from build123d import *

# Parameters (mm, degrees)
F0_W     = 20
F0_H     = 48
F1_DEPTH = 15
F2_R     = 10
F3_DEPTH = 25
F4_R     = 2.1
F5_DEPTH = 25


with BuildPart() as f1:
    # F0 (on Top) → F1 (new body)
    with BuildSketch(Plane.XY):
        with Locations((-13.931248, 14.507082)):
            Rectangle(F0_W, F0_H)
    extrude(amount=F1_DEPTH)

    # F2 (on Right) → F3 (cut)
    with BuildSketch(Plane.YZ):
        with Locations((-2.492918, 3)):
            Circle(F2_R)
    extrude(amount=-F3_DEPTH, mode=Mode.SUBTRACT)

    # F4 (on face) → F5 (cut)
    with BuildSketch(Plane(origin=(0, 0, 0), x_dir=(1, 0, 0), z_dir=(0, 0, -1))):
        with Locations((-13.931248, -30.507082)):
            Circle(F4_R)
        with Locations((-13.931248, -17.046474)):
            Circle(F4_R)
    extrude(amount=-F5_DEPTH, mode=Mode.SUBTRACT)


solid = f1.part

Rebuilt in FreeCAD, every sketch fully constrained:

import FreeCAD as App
import Part
import Sketcher

V = App.Vector


def add_polygon(sketch, points):
    """Adds a closed chain of lines whose ends are joined by coincident constraints."""
    first, n = sketch.GeometryCount, len(points)
    for a, b in zip(points, points[1:] + points[:1]):
        sketch.addGeometry(Part.LineSegment(App.Vector(*a, 0), App.Vector(*b, 0)), False)
    for i in range(n):
        sketch.addConstraint(Sketcher.Constraint("Coincident", first + i, 2, first + (i + 1) % n, 1))

doc = App.newDocument("Part")
body = doc.addObject("PartDesign::Body", "Body")

# Sketch on XY plane
sketch1 = doc.addObject("Sketcher::SketchObject", "Sketch")
body.addObject(sketch1)
sketch1.AttachmentSupport = (doc.XY_Plane, [""])
sketch1.MapMode = "FlatFace"
add_polygon(sketch1, [(-24, 39), (-24, -9), (-4, -9), (-4, 39)])  # lines 0-3
sketch1.addConstraint([
    Sketcher.Constraint("Vertical", 0),
    Sketcher.Constraint("Horizontal", 1),
    Sketcher.Constraint("Vertical", 2),
    Sketcher.Constraint("Horizontal", 3),
    Sketcher.Constraint("DistanceX", 1, 1, 1, 2, 20.0),
    Sketcher.Constraint("DistanceY", 0, 2, 0, 1, 48.0),
    Sketcher.Constraint("DistanceX", 0, 2, -1, 1, 23.931248),
    Sketcher.Constraint("DistanceY", -1, 1, 2, 2, 38.507082),
])
pad1 = doc.addObject("PartDesign::Pad", "Pad")
body.addObject(pad1)
pad1.Profile = sketch1
pad1.Length = 15

# Sketch on YZ plane
sketch2 = doc.addObject("Sketcher::SketchObject", "Sketch001")
body.addObject(sketch2)
sketch2.AttachmentSupport = (doc.YZ_Plane, [""])
sketch2.MapMode = "FlatFace"
sketch2.addGeometry(Part.Circle(V(-2, 3, 0), V(0, 0, 1), 10), False)
sketch2.addConstraint([
    Sketcher.Constraint("Diameter", 0, 20.0),
    Sketcher.Constraint("DistanceY", -1, 1, 0, 3, 3.0),
    Sketcher.Constraint("DistanceX", 0, 3, -1, 1, 2.492918),
])
pocket1 = doc.addObject("PartDesign::Pocket", "Pocket")
body.addObject(pocket1)
pocket1.Profile = sketch2
pocket1.Length = 25

# Sketch on XY plane
sketch3 = doc.addObject("Sketcher::SketchObject", "Sketch002")
body.addObject(sketch3)
sketch3.AttachmentSupport = (doc.XY_Plane, [""])
sketch3.MapMode = "FlatFace"
sketch3.addGeometry([
    Part.Circle(V(-13.9, 30.5, 0), V(0, 0, 1), 2.1),
    Part.Circle(V(-13.9, 17, 0), V(0, 0, 1), 2.1),
], False)
sketch3.addConstraint([
    Sketcher.Constraint("Equal", 0, 1),
    Sketcher.Constraint("Vertical", 0, 3, 1, 3),
    Sketcher.Constraint("Diameter", 0, 4.2),
    Sketcher.Constraint("DistanceX", 0, 3, -1, 1, 13.931248),
    Sketcher.Constraint("DistanceY", -1, 1, 0, 3, 30.507082),
    Sketcher.Constraint("DistanceY", -1, 1, 1, 3, 17.046474),
])
pocket2 = doc.addObject("PartDesign::Pocket", "Pocket001")
body.addObject(pocket2)
pocket2.Profile = sketch3
pocket2.Length = 25
pocket2.Reversed = True

doc.recompute()
